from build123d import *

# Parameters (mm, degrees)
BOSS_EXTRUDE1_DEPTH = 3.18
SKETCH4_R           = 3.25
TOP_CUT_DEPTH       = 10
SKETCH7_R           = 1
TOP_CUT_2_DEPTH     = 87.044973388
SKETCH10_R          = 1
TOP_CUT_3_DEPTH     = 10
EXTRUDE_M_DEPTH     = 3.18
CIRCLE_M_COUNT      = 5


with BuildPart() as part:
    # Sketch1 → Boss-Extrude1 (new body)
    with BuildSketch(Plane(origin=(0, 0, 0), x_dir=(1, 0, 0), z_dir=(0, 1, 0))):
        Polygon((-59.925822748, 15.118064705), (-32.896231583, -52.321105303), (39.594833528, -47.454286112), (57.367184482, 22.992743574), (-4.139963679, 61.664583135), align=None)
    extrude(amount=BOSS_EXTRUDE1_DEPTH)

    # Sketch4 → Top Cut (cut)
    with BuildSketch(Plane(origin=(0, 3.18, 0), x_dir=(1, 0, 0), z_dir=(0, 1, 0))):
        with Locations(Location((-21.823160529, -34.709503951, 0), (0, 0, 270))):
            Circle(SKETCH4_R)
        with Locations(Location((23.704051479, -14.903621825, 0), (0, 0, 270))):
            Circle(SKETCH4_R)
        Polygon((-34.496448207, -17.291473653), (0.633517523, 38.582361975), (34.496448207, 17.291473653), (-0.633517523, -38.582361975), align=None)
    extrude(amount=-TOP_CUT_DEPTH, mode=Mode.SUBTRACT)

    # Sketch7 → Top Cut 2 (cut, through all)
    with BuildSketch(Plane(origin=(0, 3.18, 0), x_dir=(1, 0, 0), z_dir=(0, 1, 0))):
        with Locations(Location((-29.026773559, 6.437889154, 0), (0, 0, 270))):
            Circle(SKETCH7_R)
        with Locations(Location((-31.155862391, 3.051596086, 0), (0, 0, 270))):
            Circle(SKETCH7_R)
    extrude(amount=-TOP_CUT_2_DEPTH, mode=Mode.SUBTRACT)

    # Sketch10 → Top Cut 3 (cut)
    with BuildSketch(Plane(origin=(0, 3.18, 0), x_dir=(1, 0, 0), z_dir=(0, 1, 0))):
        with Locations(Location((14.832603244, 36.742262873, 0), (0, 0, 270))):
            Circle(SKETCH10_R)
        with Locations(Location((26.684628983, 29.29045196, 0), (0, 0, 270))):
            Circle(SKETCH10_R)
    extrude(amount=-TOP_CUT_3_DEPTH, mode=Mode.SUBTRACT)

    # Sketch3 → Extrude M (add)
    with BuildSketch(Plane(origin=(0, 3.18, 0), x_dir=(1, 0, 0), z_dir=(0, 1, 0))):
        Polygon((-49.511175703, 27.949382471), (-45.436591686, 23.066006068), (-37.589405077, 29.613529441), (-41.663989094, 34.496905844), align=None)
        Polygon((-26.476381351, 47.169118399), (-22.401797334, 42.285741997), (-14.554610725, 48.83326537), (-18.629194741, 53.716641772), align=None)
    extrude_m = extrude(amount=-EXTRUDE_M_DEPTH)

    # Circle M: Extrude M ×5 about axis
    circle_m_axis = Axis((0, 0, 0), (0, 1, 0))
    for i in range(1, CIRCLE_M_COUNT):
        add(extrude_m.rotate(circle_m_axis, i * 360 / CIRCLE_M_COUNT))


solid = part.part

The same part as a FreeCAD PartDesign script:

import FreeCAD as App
import Part
import Sketcher

doc = App.newDocument("Part")
body = doc.addObject("PartDesign::Body", "Body")

sketch1 = body.newObject("Sketcher::SketchObject", "Sketch")
sketch1.AttachmentSupport = (doc.getObject("XZ_Plane"), [""])
sketch1.MapMode = "FlatFace"
sketch1.addGeometry(Part.LineSegment(App.Vector(-59.925823, -15.118065, 0), App.Vector(-32.896232, 52.321105, 0)), False)
sketch1.addGeometry(Part.LineSegment(App.Vector(-32.896232, 52.321105, 0), App.Vector(39.594834, 47.454286, 0)), False)
sketch1.addGeometry(Part.LineSegment(App.Vector(39.594834, 47.454286, 0), App.Vector(57.367184, -22.992744, 0)), False)
sketch1.addGeometry(Part.LineSegment(App.Vector(57.367184, -22.992744, 0), App.Vector(-4.139964, -61.664583, 0)), False)
sketch1.addGeometry(Part.LineSegment(App.Vector(-4.139964, -61.664583, 0), App.Vector(-59.925823, -15.118065, 0)), False)
sketch1.addConstraint(Sketcher.Constraint("Coincident", 0, 2, 1, 1))
sketch1.addConstraint(Sketcher.Constraint("Coincident", 1, 2, 2, 1))
sketch1.addConstraint(Sketcher.Constraint("Coincident", 2, 2, 3, 1))
sketch1.addConstraint(Sketcher.Constraint("Coincident", 3, 2, 4, 1))
sketch1.addConstraint(Sketcher.Constraint("Coincident", 4, 2, 0, 1))
sketch1.addConstraint(Sketcher.Constraint("Equal", 0, 1))
sketch1.addConstraint(Sketcher.Constraint("Equal", 1, 2))
sketch1.addConstraint(Sketcher.Constraint("Equal", 2, 3))
sketch1.addConstraint(Sketcher.Constraint("Equal", 3, 4))
sketch1.addConstraint(Sketcher.Constraint("DistanceX", 0, 2, -1, 1, 32.896232))
sketch1.addConstraint(Sketcher.Constraint("DistanceY", 1, 2, 0, 2, 4.866819))
sketch1.addConstraint(Sketcher.Constraint("DistanceX", 1, 2, 2, 2, 17.772351))
sketch1.addConstraint(Sketcher.Constraint("DistanceY", 2, 2, 1, 2, 70.44703))
sketch1.addConstraint(Sketcher.Constraint("DistanceX", 3, 2, 2, 2, 61.507148))
sketch1.addConstraint(Sketcher.Constraint("DistanceY", -1, 1, 0, 2, 52.321105))
pad1 = body.newObject("PartDesign::Pad", "Pad")
pad1.Profile = sketch1
pad1.Length = 3.18
pad1.Reversed = True

sketch2 = body.newObject("Sketcher::SketchObject", "Sketch001")
sketch2.AttachmentSupport = (doc.getObject("XZ_Plane"), [""])
sketch2.MapMode = "FlatFace"
sketch2.AttachmentOffset = App.Placement(App.Vector(0, 0, -3.18), App.Rotation())
sketch2.addGeometry(Part.Circle(App.Vector(-21.823161, 34.709504, 0), App.Vector(0, 0, 1), 3.25), False)
sketch2.addGeometry(Part.Circle(App.Vector(23.704051, 14.903622, 0), App.Vector(0, 0, 1), 3.25), False)
sketch2.addGeometry(Part.LineSegment(App.Vector(0.633518, -38.582362, 0), App.Vector(-34.496448, 17.291474, 0)), False)
sketch2.addGeometry(Part.LineSegment(App.Vector(-34.496448, 17.291474, 0), App.Vector(-0.633518, 38.582362, 0)), False)
sketch2.addGeometry(Part.LineSegment(App.Vector(-0.633518, 38.582362, 0), App.Vector(34.496448, -17.291474, 0)), False)
sketch2.addGeometry(Part.LineSegment(App.Vector(34.496448, -17.291474, 0), App.Vector(0.633518, -38.582362, 0)), False)
sketch2.addConstraint(Sketcher.Constraint("Coincident", 2, 2, 3, 1))
sketch2.addConstraint(Sketcher.Constraint("Coincident", 3, 2, 4, 1))
sketch2.addConstraint(Sketcher.Constraint("Coincident", 4, 2, 5, 1))
sketch2.addConstraint(Sketcher.Constraint("Coincident", 5, 2, 2, 1))
sketch2.addConstraint(Sketcher.Constraint("Equal", 0, 1))
sketch2.addConstraint(Sketcher.Constraint("Symmetric", 2, 2, 4, 2, -1, 1))
sketch2.addConstraint(Sketcher.Constraint("Symmetric", 3, 2, 5, 2, -1, 1))
sketch2.addConstraint(Sketcher.Constraint("Perpendicular", 2, 3))
sketch2.addConstraint(Sketcher.Constraint("Diameter", 0, 6.5))
sketch2.addConstraint(Sketcher.Constraint("Distance", 2, 66.0))
sketch2.addConstraint(Sketcher.Constraint("Distance", 3, 40.0))
sketch2.addConstraint(Sketcher.Constraint("DistanceX", 2, 2, 1, 3, 58.2005))
sketch2.addConstraint(Sketcher.Constraint("DistanceX", 0, 3, -1, 1, 21.823161))
sketch2.addConstraint(Sketcher.Constraint("DistanceX", -1, 1, 1, 3, 23.704051))
sketch2.addConstraint(Sketcher.Constraint("DistanceY", -1, 1, 1, 3, 14.903622))
sketch2.addConstraint(Sketcher.Constraint("DistanceY", 2, 2, 0, 3, 17.41803))
pocket1 = body.newObject("PartDesign::Pocket", "Pocket")
pocket1.Profile = sketch2
pocket1.Length = 10
pocket1.Reversed = True

sketch3 = body.newObject("Sketcher::SketchObject", "Sketch002")
sketch3.AttachmentSupport = (doc.getObject("XZ_Plane"), [""])
sketch3.MapMode = "FlatFace"
sketch3.AttachmentOffset = App.Placement(App.Vector(0, 0, -3.18), App.Rotation())
sketch3.addGeometry(Part.Circle(App.Vector(-29.026774, -6.437889, 0), App.Vector(0, 0, 1), 1), False)
sketch3.addGeometry(Part.Circle(App.Vector(-31.155862, -3.051596, 0), App.Vector(0, 0, 1), 1), False)
sketch3.addConstraint(Sketcher.Constraint("Equal", 0, 1))
sketch3.addConstraint(Sketcher.Constraint("Diameter", 0, 2.0))
sketch3.addConstraint(Sketcher.Constraint("DistanceY", 0, 3, -1, 1, 6.437889))
sketch3.addConstraint(Sketcher.Constraint("DistanceX", 1, 3, 0, 3, 2.129089))
sketch3.addConstraint(Sketcher.Constraint("DistanceX", 0, 3, -1, 1, 29.026774))
sketch3.addConstraint(Sketcher.Constraint("DistanceY", 1, 3, -1, 1, 3.051596))
pocket2 = body.newObject("PartDesign::Pocket", "Pocket001")
pocket2.Profile = sketch3
pocket2.Type = "ThroughAll"
pocket2.Reversed = True

sketch4 = body.newObject("Sketcher::SketchObject", "Sketch003")
sketch4.AttachmentSupport = (doc.getObject("XZ_Plane"), [""])
sketch4.MapMode = "FlatFace"
sketch4.AttachmentOffset = App.Placement(App.Vector(0, 0, -3.18), App.Rotation())
sketch4.addGeometry(Part.Circle(App.Vector(14.832603, -36.742263, 0), App.Vector(0, 0, 1), 1), False)
sketch4.addGeometry(Part.Circle(App.Vector(26.684629, -29.290452, 0), App.Vector(0, 0, 1), 1), False)
sketch4.addConstraint(Sketcher.Constraint("Equal", 0, 1))
sketch4.addConstraint(Sketcher.Constraint("Diameter", 0, 2.0))
sketch4.addConstraint(Sketcher.Constraint("DistanceX", -1, 1, 1, 3, 26.684629))
sketch4.addConstraint(Sketcher.Constraint("DistanceY", 1, 3, -1, 1, 29.290452))
sketch4.addConstraint(Sketcher.Constraint("DistanceY", 0, 3, 1, 3, 7.451811))
sketch4.addConstraint(Sketcher.Constraint("DistanceX", -1, 1, 0, 3, 14.832603))
pocket3 = body.newObject("PartDesign::Pocket", "Pocket002")
pocket3.Profile = sketch4
pocket3.Length = 10
pocket3.Reversed = True

sketch5 = body.newObject("Sketcher::SketchObject", "Sketch004")
sketch5.AttachmentSupport = (doc.getObject("XZ_Plane"), [""])
sketch5.MapMode = "FlatFace"
sketch5.AttachmentOffset = App.Placement(App.Vector(0, 0, -3.18), App.Rotation())
sketch5.addGeometry(Part.LineSegment(App.Vector(-49.511176, -27.949382, 0), App.Vector(-45.436592, -23.066006, 0)), False)
sketch5.addGeometry(Part.LineSegment(App.Vector(-45.436592, -23.066006, 0), App.Vector(-37.589405, -29.613529, 0)), False)
sketch5.addGeometry(Part.LineSegment(App.Vector(-37.589405, -29.613529, 0), App.Vector(-41.663989, -34.496906, 0)), False)
sketch5.addGeometry(Part.LineSegment(App.Vector(-41.663989, -34.496906, 0), App.Vector(-49.511176, -27.949382, 0)), False)
sketch5.addGeometry(Part.LineSegment(App.Vector(-26.476381, -47.169118, 0), App.Vector(-22.401797, -42.285742, 0)), False)
sketch5.addGeometry(Part.LineSegment(App.Vector(-22.401797, -42.285742, 0), App.Vector(-14.554611, -48.833265, 0)), False)
sketch5.addGeometry(Part.LineSegment(App.Vector(-14.554611, -48.833265, 0), App.Vector(-18.629195, -53.716642, 0)), False)
sketch5.addGeometry(Part.LineSegment(App.Vector(-18.629195, -53.716642, 0), App.Vector(-26.476381, -47.169118, 0)), False)
sketch5.addConstraint(Sketcher.Constraint("Coincident", 0, 2, 1, 1))
sketch5.addConstraint(Sketcher.Constraint("Coincident", 1, 2, 2, 1))
sketch5.addConstraint(Sketcher.Constraint("Coincident", 2, 2, 3, 1))
sketch5.addConstraint(Sketcher.Constraint("Coincident", 3, 2, 0, 1))
sketch5.addConstraint(Sketcher.Constraint("Coincident", 4, 2, 5, 1))
sketch5.addConstraint(Sketcher.Constraint("Coincident", 5, 2, 6, 1))
sketch5.addConstraint(Sketcher.Constraint("Coincident", 6, 2, 7, 1))
sketch5.addConstraint(Sketcher.Constraint("Coincident", 7, 2, 4, 1))
sketch5.addConstraint(Sketcher.Constraint("Perpendicular", 0, 1))
sketch5.addConstraint(Sketcher.Constraint("Perpendicular", 1, 2))
sketch5.addConstraint(Sketcher.Constraint("Perpendicular", 2, 3))
sketch5.addConstraint(Sketcher.Constraint("Perpendicular", 3, 4))
sketch5.addConstraint(Sketcher.Constraint("Perpendicular", 4, 5))
sketch5.addConstraint(Sketcher.Constraint("Perpendicular", 5, 6))
sketch5.addConstraint(Sketcher.Constraint("Perpendicular", 6, 7))
sketch5.addConstraint(Sketcher.Constraint("Equal", 2, 4))
sketch5.addConstraint(Sketcher.Constraint("Equal", 3, 5))
sketch5.addConstraint(Sketcher.Constraint("Distance", 0, 6.36))
sketch5.addConstraint(Sketcher.Constraint("Distance", 1, 10.22))
sketch5.addConstraint(Sketcher.Constraint("DistanceY", 2, 2, 0, 2, 11.4309))
sketch5.addConstraint(Sketcher.Constraint("DistanceX", 0, 2, -1, 1, 45.436592))
sketch5.addConstraint(Sketcher.Constraint("DistanceY", 1, 2, -1, 1, 29.613529))
sketch5.addConstraint(Sketcher.Constraint("DistanceY", 4, 2, -1, 1, 42.285742))
sketch5.addConstraint(Sketcher.Constraint("DistanceX", 5, 2, -1, 1, 14.554611))
pad2 = body.newObject("PartDesign::Pad", "Pad001")
pad2.Profile = sketch5
pad2.Length = 3.18
doc.recompute()

polarpattern = body.newObject("PartDesign::PolarPattern", "PolarPattern")
polarpattern.Originals = [pad2]
polarpattern.Axis = (doc.getObject("Y_Axis"), [""])
polarpattern.Angle = 360
polarpattern.Occurrences = 5
body.Tip = polarpattern

doc.recompute()
